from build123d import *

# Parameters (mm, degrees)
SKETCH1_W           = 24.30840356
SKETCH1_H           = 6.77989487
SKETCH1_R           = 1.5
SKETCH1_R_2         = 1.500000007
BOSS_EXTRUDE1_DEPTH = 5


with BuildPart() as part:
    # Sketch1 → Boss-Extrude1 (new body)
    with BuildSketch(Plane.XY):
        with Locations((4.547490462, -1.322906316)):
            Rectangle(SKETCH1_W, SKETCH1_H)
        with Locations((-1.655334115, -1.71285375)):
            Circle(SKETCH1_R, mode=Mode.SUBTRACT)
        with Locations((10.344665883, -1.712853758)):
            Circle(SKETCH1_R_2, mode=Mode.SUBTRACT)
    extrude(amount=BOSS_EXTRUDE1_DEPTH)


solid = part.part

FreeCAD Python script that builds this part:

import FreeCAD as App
import Part
import Sketcher
Q = App.Units.Quantity

doc = App.newDocument("Part")
params = doc.addObject("Spreadsheet::Sheet", "Params")
for row, (alias, value) in enumerate([
    ("sketch1_diameter", "3 mm"),
    ("pad1_length", "5 mm"),
], start=1):
    params.set(f"A{row}", alias)
    params.set(f"B{row}", "=" + value)
    params.setAlias(f"B{row}", alias)

body = doc.addObject("PartDesign::Body", "Body")

# Sketch on XY plane
sketch1 = doc.addObject("Sketcher::SketchObject", "Sketch")
body.addObject(sketch1)
sketch1.AttachmentSupport = (doc.XY_Plane, [""])
sketch1.MapMode = "FlatFace"
sketch1.addGeometry([
    Part.LineSegment(App.Vector(-7.606711, 2.067041, 0), App.Vector(-7.606711, -4.712854, 0)),  # 0
    Part.LineSegment(App.Vector(-7.606711, -4.712854, 0), App.Vector(16.701692, -4.712854, 0)),  # 1
    Part.LineSegment(App.Vector(16.701692, -4.712854, 0), App.Vector(16.701692, 2.067041, 0)),  # 2
    Part.LineSegment(App.Vector(16.701692, 2.067041, 0), App.Vector(-7.606711, 2.067041, 0)),  # 3
    Part.Circle(App.Vector(10.344666, -1.712854, 0), App.Vector(0, 0, 1), 1.5),  # 4
    Part.Circle(App.Vector(-1.655334, -1.712854, 0), App.Vector(0, 0, 1), 1.5),  # 5
], False)
sketch1.addConstraint([
    Sketcher.Constraint("Coincident", 0, 2, 1, 1),
    Sketcher.Constraint("Coincident", 1, 2, 2, 1),
    Sketcher.Constraint("Coincident", 2, 2, 3, 1),
    Sketcher.Constraint("Coincident", 3, 2, 0, 1),
    Sketcher.Constraint("Vertical", 0),
    Sketcher.Constraint("Horizontal", 1),
    Sketcher.Constraint("Vertical", 2),
    Sketcher.Constraint("Horizontal", 3),
    Sketcher.Constraint("Equal", 4, 5),
    Sketcher.Constraint("Horizontal", 4, 3, 5, 3),
    Sketcher.Constraint("Diameter", 4, Q("3 mm")),
    Sketcher.Constraint("DistanceX", 5, 3, 4, 3, Q("12 mm")),
    Sketcher.Constraint("DistanceY", 0, 2, 5, 3, Q("3 mm")),
    Sketcher.Constraint("DistanceX", 1, 1, 1, 2, Q("24.308404 mm")),
    Sketcher.Constraint("DistanceY", 0, 2, 0, 1, Q("6.779895 mm")),
    Sketcher.Constraint("DistanceX", 0, 2, -1, 1, Q("7.606711 mm")),
    Sketcher.Constraint("DistanceY", -1, 1, 2, 2, Q("2.067041 mm")),
    Sketcher.Constraint("DistanceX", -1, 1, 4, 3, Q("10.344666 mm")),
])
sketch1.setExpression("Constraints[10]", "Params.sketch1_diameter")
pad1 = doc.addObject("PartDesign::Pad", "Pad")
body.addObject(pad1)
pad1.Profile = sketch1
pad1.setExpression("Length", "Params.pad1_length")

doc.recompute()
